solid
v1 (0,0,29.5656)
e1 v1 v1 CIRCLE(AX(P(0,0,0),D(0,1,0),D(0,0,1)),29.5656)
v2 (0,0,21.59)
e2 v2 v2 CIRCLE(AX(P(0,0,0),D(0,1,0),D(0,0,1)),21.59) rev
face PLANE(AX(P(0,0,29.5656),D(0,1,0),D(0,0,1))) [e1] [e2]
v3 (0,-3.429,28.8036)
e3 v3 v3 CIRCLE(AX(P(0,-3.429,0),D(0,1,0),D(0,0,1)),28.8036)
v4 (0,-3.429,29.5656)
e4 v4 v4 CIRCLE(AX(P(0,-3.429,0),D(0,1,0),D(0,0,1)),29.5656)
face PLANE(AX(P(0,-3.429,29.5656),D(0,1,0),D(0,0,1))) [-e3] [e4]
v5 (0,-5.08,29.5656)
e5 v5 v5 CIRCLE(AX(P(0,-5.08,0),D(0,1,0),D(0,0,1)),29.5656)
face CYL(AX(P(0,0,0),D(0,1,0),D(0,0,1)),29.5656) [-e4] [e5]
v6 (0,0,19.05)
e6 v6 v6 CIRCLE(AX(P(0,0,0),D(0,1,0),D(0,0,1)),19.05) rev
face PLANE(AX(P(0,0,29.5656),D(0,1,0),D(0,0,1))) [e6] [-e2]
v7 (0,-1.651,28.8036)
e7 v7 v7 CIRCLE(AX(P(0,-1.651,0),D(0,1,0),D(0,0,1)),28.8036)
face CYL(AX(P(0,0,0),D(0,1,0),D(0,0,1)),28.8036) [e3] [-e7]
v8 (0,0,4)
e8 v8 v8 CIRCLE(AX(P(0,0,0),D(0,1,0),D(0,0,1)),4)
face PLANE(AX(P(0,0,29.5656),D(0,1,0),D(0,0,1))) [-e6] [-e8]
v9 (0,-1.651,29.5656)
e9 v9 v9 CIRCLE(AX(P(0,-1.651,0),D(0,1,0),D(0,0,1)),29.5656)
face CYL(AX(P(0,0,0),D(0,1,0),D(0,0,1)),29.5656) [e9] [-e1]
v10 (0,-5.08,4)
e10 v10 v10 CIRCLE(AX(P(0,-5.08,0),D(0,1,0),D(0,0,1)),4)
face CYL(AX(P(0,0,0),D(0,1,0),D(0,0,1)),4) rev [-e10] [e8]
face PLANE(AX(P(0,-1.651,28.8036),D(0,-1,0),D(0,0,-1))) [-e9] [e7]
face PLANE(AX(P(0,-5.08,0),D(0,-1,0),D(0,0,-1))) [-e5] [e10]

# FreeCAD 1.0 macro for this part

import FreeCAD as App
import Part
import Sketcher
Q = App.Units.Quantity

doc = App.newDocument("Part")
body = doc.addObject("PartDesign::Body", "Body")

sketch1 = body.newObject("Sketcher::SketchObject", "Sketch")
sketch1.AttachmentSupport = (doc.getObject("YZ_Plane"), [""])
sketch1.MapMode = "FlatFace"
sketch1.addGeometry(Part.LineSegment(App.Vector(-5.08, 0, 0), App.Vector(0, 0, 0)), False)
sketch1.addGeometry(Part.LineSegment(App.Vector(0, 0, 0), App.Vector(0, 29.5656, 0)), False)
sketch1.addGeometry(Part.LineSegment(App.Vector(0, 29.5656, 0), App.Vector(-1.651, 29.5656, 0)), False)
sketch1.addGeometry(Part.LineSegment(App.Vector(-1.651, 29.5656, 0), App.Vector(-1.651, 28.8036, 0)), False)
sketch1.addGeometry(Part.LineSegment(App.Vector(-1.651, 28.8036, 0), App.Vector(-3.429, 28.8036, 0)), False)
sketch1.addGeometry(Part.LineSegment(App.Vector(-3.429, 28.8036, 0), App.Vector(-3.429, 29.5656, 0)), False)
sketch1.addGeometry(Part.LineSegment(App.Vector(-3.429, 29.5656, 0), App.Vector(-5.08, 29.5656, 0)), False)
sketch1.addGeometry(Part.LineSegment(App.Vector(-5.08, 29.5656, 0), App.Vector(-5.08, 0, 0)), False)
sketch1.addConstraint(Sketcher.Constraint("Coincident", 0, 2, 1, 1))
sketch1.addConstraint(Sketcher.Constraint("Coincident", 1, 2, 2, 1))
sketch1.addConstraint(Sketcher.Constraint("Coincident", 2, 2, 3, 1))
sketch1.addConstraint(Sketcher.Constraint("Coincident", 3, 2, 4, 1))
sketch1.addConstraint(Sketcher.Constraint("Coincident", 4, 2, 5, 1))
sketch1.addConstraint(Sketcher.Constraint("Coincident", 5, 2, 6, 1))
sketch1.addConstraint(Sketcher.Constraint("Coincident", 6, 2, 7, 1))
sketch1.addConstraint(Sketcher.Constraint("Coincident", 7, 2, 0, 1))
sketch1.addConstraint(Sketcher.Constraint("Horizontal", 0))
sketch1.addConstraint(Sketcher.Constraint("Vertical", 1))
sketch1.addConstraint(Sketcher.Constraint("Horizontal", 2))
sketch1.addConstraint(Sketcher.Constraint("Vertical", 3))
sketch1.addConstraint(Sketcher.Constraint("Horizontal", 4))
sketch1.addConstraint(Sketcher.Constraint("Vertical", 5))
sketch1.addConstraint(Sketcher.Constraint("Horizontal", 6))
sketch1.addConstraint(Sketcher.Constraint("Vertical", 7))
sketch1.addConstraint(Sketcher.Constraint("Coincident", 0, 2, -1, 1))
sketch1.addConstraint(Sketcher.Constraint("Horizontal", 2, 2, 5, 2))
sketch1.addConstraint(Sketcher.Constraint("Equal", 2, 6))
sketch1.addConstraint(Sketcher.Constraint("DistanceX", 0, 1, 0, 2, Q("0.2 in")))
sketch1.addConstraint(Sketcher.Constraint("DistanceX", 4, 2, 4, 1, Q("0.07 in")))
sketch1.addConstraint(Sketcher.Constraint("DistanceY", 3, 2, 3, 1, Q("0.03 in")))
sketch1.addConstraint(Sketcher.Constraint("DistanceY", 1, 1, 1, 2, Q("1.164 in")))
revolution = body.newObject("PartDesign::Revolution", "Revolution")
revolution.Profile = sketch1
revolution.ReferenceAxis = (sketch1, ["H_Axis"])
revolution.Angle = 360

sketch2 = body.newObject("Sketcher::SketchObject", "Sketch001")
sketch2.AttachmentSupport = (doc.getObject("XZ_Plane"), [""])
sketch2.MapMode = "FlatFace"
sketch2.addGeometry(Part.Circle(App.Vector(0, 0, 0), App.Vector(0, 0, 1), 4), False)
sketch2.addConstraint(Sketcher.Constraint("Coincident", 0, 3, -1, 1))
sketch2.addConstraint(Sketcher.Constraint("Diameter", 0, Q("8 mm")))
doc.recompute()
hole = body.newObject("PartDesign::Hole", "Hole")
hole.Profile = sketch2
hole.ThreadType = "None"
hole.Diameter = 8
hole.DepthType = "ThroughAll"
hole.Reversed = True

doc.recompute()
